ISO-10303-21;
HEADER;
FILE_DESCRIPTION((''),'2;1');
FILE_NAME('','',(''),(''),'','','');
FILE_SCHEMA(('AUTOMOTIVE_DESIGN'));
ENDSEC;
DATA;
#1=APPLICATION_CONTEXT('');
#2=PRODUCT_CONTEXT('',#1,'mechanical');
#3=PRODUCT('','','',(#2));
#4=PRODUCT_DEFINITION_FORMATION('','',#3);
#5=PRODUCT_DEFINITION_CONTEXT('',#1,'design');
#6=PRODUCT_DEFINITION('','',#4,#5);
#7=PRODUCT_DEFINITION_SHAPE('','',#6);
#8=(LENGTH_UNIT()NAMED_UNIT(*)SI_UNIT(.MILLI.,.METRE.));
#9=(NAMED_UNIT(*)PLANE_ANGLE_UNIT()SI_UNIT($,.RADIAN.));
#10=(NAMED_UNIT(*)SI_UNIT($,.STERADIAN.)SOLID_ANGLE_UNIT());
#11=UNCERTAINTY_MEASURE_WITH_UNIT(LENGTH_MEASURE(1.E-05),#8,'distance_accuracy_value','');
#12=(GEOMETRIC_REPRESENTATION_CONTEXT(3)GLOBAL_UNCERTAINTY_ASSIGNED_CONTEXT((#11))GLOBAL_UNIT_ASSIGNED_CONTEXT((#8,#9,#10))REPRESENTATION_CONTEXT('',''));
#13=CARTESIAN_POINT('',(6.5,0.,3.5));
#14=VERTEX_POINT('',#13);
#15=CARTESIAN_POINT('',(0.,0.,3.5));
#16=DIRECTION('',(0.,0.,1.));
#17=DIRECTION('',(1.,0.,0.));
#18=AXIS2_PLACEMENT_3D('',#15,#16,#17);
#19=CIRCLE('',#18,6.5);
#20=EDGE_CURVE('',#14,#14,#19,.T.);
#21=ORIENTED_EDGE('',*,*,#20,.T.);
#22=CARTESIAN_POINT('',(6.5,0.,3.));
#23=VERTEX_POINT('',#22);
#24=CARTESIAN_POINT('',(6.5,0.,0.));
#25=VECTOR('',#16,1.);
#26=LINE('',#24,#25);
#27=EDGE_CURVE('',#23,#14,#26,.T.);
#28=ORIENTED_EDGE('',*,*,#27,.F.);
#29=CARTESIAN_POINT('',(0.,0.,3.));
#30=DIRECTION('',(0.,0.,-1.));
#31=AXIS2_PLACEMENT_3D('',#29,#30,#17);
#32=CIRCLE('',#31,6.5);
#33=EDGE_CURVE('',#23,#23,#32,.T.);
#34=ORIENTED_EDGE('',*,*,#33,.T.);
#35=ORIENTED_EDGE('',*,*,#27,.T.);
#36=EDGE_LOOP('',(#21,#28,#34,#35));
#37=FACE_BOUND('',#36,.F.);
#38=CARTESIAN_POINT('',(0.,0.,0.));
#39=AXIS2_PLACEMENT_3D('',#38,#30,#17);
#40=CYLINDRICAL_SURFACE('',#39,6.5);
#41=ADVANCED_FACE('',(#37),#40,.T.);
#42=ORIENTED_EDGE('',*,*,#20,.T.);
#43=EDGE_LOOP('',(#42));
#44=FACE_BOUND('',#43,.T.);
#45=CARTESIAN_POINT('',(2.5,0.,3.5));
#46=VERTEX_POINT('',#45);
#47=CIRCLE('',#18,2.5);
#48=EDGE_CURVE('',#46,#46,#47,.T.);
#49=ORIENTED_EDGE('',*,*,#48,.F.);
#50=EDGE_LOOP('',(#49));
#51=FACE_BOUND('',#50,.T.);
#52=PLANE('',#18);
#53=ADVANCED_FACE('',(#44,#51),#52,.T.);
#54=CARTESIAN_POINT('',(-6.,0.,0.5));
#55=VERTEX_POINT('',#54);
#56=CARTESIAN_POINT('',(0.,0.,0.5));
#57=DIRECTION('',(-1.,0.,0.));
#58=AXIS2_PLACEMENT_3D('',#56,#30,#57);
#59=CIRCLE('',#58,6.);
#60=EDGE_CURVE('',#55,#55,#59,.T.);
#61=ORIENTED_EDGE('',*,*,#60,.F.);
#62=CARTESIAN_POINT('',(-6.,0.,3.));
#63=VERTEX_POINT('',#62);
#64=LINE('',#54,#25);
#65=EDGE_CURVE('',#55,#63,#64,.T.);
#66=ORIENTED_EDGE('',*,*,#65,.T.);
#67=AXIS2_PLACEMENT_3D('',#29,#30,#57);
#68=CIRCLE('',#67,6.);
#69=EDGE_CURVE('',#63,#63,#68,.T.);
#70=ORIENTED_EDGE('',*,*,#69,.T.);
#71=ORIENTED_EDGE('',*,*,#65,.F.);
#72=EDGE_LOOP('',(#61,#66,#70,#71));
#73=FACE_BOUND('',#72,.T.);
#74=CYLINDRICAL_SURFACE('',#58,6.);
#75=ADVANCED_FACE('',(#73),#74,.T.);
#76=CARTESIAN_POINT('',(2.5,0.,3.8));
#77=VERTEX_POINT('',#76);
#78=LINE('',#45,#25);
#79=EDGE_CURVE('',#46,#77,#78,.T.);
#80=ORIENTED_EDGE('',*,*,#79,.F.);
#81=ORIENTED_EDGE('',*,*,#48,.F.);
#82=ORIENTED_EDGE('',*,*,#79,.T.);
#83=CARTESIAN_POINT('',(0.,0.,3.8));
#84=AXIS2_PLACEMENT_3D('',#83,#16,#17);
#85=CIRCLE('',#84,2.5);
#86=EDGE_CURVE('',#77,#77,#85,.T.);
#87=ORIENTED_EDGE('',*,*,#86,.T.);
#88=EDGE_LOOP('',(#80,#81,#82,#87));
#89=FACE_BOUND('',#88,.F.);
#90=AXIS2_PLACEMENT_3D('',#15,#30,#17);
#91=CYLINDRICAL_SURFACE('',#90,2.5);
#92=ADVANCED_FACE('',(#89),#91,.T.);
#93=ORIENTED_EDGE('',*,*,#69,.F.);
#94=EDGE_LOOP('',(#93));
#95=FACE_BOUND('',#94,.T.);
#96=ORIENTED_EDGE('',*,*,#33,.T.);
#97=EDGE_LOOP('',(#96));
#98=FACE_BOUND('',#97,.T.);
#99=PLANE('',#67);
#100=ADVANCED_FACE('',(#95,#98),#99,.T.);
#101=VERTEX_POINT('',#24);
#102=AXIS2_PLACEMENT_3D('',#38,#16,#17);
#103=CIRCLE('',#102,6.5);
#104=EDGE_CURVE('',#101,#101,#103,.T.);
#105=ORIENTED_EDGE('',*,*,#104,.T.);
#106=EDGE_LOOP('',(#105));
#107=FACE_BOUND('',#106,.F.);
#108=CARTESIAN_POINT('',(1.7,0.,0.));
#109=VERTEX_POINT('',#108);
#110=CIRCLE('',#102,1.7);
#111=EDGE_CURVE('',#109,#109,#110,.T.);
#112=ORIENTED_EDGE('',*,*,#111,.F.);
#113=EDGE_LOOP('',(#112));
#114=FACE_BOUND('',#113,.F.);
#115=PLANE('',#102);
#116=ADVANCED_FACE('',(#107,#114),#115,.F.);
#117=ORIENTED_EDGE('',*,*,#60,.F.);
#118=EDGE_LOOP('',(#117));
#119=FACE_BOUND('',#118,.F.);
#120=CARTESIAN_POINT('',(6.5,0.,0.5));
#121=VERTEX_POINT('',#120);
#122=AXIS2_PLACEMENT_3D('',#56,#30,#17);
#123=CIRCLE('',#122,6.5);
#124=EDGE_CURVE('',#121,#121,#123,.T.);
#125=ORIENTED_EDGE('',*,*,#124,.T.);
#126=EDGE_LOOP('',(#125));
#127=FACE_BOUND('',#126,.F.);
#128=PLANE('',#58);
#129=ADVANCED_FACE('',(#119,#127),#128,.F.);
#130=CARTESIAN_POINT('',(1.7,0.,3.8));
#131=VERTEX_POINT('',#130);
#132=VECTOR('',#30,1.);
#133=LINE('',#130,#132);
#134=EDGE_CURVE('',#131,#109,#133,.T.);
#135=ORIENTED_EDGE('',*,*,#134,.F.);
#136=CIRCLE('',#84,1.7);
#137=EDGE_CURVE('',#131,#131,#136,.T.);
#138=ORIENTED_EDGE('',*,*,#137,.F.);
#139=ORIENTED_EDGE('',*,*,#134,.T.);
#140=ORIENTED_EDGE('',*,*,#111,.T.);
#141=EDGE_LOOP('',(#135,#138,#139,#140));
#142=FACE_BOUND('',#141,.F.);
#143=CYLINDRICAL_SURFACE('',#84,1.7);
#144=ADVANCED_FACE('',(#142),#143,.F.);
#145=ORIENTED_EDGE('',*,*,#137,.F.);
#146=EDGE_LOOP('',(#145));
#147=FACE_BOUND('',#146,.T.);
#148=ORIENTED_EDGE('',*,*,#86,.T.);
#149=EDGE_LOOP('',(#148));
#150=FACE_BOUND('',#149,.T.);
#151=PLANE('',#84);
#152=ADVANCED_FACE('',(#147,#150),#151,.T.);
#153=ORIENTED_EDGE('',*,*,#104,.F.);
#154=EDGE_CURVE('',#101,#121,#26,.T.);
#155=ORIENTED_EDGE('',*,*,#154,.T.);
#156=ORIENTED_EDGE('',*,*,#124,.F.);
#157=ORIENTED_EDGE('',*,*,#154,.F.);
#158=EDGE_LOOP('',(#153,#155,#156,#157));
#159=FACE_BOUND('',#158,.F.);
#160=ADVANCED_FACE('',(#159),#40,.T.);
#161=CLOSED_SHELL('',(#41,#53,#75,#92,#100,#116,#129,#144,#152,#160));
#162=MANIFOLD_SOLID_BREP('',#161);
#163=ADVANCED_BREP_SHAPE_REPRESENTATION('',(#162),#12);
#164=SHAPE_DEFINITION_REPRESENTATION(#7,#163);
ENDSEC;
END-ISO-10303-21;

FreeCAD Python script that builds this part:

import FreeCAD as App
import Part
import Sketcher
Q = App.Units.Quantity

doc = App.newDocument("Part")
body = doc.addObject("PartDesign::Body", "Body")

sketch1 = body.newObject("Sketcher::SketchObject", "Sketch")
sketch1.AttachmentSupport = (doc.getObject("XY_Plane"), [""])
sketch1.MapMode = "FlatFace"
sketch1.addGeometry(Part.Circle(App.Vector(0, 0, 0), App.Vector(0, 0, 1), 6), False)
sketch1.addConstraint(Sketcher.Constraint("Coincident", 0, 3, -1, 1))
sketch1.addConstraint(Sketcher.Constraint("Diameter", 0, Q("13 mm")))
pad1 = body.newObject("PartDesign::Pad", "Pad")
pad1.Profile = sketch1
pad1.Length = 3.5

sketch2 = body.newObject("Sketcher::SketchObject", "Sketch001")
sketch2.AttachmentSupport = (doc.getObject("XY_Plane"), [""])
sketch2.MapMode = "FlatFace"
sketch2.AttachmentOffset = App.Placement(App.Vector(0, 0, 3.5), App.Rotation())
sketch2.addGeometry(Part.Circle(App.Vector(0, 0, 0), App.Vector(0, 0, 1), 2.5), False)
sketch2.addConstraint(Sketcher.Constraint("Coincident", 0, 3, -1, 1))
sketch2.addConstraint(Sketcher.Constraint("Diameter", 0, Q("5 mm")))
pad2 = body.newObject("PartDesign::Pad", "Pad001")
pad2.Profile = sketch2
pad2.Length = 0.3

sketch3 = body.newObject("Sketcher::SketchObject", "Sketch002")
sketch3.AttachmentSupport = (doc.getObject("XY_Plane"), [""])
sketch3.MapMode = "FlatFace"
sketch3.AttachmentOffset = App.Placement(App.Vector(0, 0, 0.5), App.Rotation())
sketch3.addGeometry(Part.Circle(App.Vector(0, 0, 0), App.Vector(0, 0, 1), 6), False)
sketch3.addGeometry(Part.Circle(App.Vector(0, 0, 0), App.Vector(0, 0, 1), 6), False)
sketch3.addConstraint(Sketcher.Constraint("Coincident", 0, 3, -1, 1))
sketch3.addConstraint(Sketcher.Constraint("Coincident", 1, 3, -1, 1))
sketch3.addConstraint(Sketcher.Constraint("Diameter", 0, Q("13 mm")))
sketch3.addConstraint(Sketcher.Constraint("Diameter", 1, Q("12 mm")))
pocket1 = body.newObject("PartDesign::Pocket", "Pocket")
pocket1.Profile = sketch3
pocket1.Length = 2.5
pocket1.Reversed = True

sketch4 = body.newObject("Sketcher::SketchObject", "Sketch003")
sketch4.AttachmentSupport = (doc.getObject("XY_Plane"), [""])
sketch4.MapMode = "FlatFace"
sketch4.AttachmentOffset = App.Placement(App.Vector(0, 0, 3.8), App.Rotation())
sketch4.addGeometry(Part.Circle(App.Vector(0, 0, 0), App.Vector(0, 0, 1), 1.7), False)
sketch4.addConstraint(Sketcher.Constraint("Coincident", 0, 3, -1, 1))
sketch4.addConstraint(Sketcher.Constraint("Diameter", 0, Q("3.4 mm")))
pocket2 = body.newObject("PartDesign::Pocket", "Pocket001")
pocket2.Profile = sketch4
pocket2.Type = "ThroughAll"

doc.recompute()
